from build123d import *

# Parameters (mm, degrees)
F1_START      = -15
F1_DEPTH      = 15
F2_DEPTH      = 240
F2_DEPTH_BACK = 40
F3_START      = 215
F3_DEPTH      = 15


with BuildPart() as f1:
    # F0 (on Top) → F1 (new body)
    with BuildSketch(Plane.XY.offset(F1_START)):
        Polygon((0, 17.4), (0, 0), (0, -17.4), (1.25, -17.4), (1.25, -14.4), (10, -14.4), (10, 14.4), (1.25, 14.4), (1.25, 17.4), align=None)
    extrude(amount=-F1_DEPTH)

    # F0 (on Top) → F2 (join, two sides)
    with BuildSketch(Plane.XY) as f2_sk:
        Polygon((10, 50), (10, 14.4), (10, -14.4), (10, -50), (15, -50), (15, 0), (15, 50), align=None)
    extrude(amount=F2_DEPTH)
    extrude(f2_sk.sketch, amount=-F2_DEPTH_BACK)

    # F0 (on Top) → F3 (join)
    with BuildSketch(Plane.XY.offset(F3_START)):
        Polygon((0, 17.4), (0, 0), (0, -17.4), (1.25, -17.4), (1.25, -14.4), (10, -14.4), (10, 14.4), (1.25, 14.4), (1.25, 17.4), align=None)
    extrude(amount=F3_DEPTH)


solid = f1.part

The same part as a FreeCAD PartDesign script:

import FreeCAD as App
import Part
import Sketcher

V = App.Vector
Q = App.Units.Quantity


def add_polygon(sketch, points):
    """Adds a closed chain of lines whose ends are joined by coincident constraints."""
    first, n = sketch.GeometryCount, len(points)
    for a, b in zip(points, points[1:] + points[:1]):
        sketch.addGeometry(Part.LineSegment(App.Vector(*a, 0), App.Vector(*b, 0)), False)
    for i in range(n):
        sketch.addConstraint(Sketcher.Constraint("Coincident", first + i, 2, first + (i + 1) % n, 1))

doc = App.newDocument("Part")
body = doc.addObject("PartDesign::Body", "Body")

# Sketch on XY plane
sketch1 = body.newObject("Sketcher::SketchObject", "Sketch")
sketch1.AttachmentSupport = (doc.getObject("XY_Plane"), [""])
sketch1.MapMode = "FlatFace"
sketch1.AttachmentOffset = App.Placement(V(0, 0, -15), App.Rotation())
add_polygon(sketch1, [(0, 17.4), (0, -17.4), (1.2, -17.4), (1.2, -14.4), (10, -14.4), (10, 14.4), (1.2, 14.4), (1.2, 17.4)])  # lines 0-7
sketch1.addConstraint(Sketcher.Constraint("Vertical", 0))
sketch1.addConstraint(Sketcher.Constraint("Horizontal", 1))
sketch1.addConstraint(Sketcher.Constraint("Vertical", 2))
sketch1.addConstraint(Sketcher.Constraint("Horizontal", 3))
sketch1.addConstraint(Sketcher.Constraint("Vertical", 4))
sketch1.addConstraint(Sketcher.Constraint("Horizontal", 5))
sketch1.addConstraint(Sketcher.Constraint("Vertical", 6))
sketch1.addConstraint(Sketcher.Constraint("Horizontal", 7))
sketch1.addConstraint(Sketcher.Constraint("Symmetric", 0, 2, 7, 2, -1, 1))
sketch1.addConstraint(Sketcher.Constraint("Symmetric", 2, 2, 5, 2, -1))
sketch1.addConstraint(Sketcher.Constraint("DistanceY", 2, 1, 2, 2, Q("3 mm")))
sketch1.addConstraint(Sketcher.Constraint("DistanceY", 0, 2, 0, 1, Q("34.8 mm")))
sketch1.addConstraint(Sketcher.Constraint("DistanceX", -1, 1, 3, 2, Q("10 mm")))
sketch1.addConstraint(Sketcher.Constraint("DistanceX", 1, 1, 1, 2, Q("1.25 mm")))
pad1 = body.newObject("PartDesign::Pad", "Pad")
pad1.Profile = sketch1
pad1.Length = 15
pad1.Reversed = True

# Sketch on XY plane
sketch2 = body.newObject("Sketcher::SketchObject", "Sketch001")
sketch2.AttachmentSupport = (doc.getObject("XY_Plane"), [""])
sketch2.MapMode = "FlatFace"
add_polygon(sketch2, [(10, 50), (10, -50), (15, -50), (15, 50)])  # lines 0-3
sketch2.addConstraint(Sketcher.Constraint("Vertical", 0))
sketch2.addConstraint(Sketcher.Constraint("Horizontal", 1))
sketch2.addConstraint(Sketcher.Constraint("Vertical", 2))
sketch2.addConstraint(Sketcher.Constraint("Horizontal", 3))
sketch2.addConstraint(Sketcher.Constraint("DistanceX", 1, 1, 1, 2, Q("5 mm")))
sketch2.addConstraint(Sketcher.Constraint("DistanceY", 0, 2, 0, 1, Q("100 mm")))
sketch2.addConstraint(Sketcher.Constraint("DistanceX", -1, 1, 0, 2, Q("10 mm")))
sketch2.addConstraint(Sketcher.Constraint("DistanceY", 0, 2, -1, 1, Q("50 mm")))
pad2 = body.newObject("PartDesign::Pad", "Pad001")
pad2.Profile = sketch2
pad2.Type = "TwoLengths"
pad2.Length = 240
pad2.Length2 = 40

# Sketch on XY plane
sketch3 = body.newObject("Sketcher::SketchObject", "Sketch002")
sketch3.AttachmentSupport = (doc.getObject("XY_Plane"), [""])
sketch3.MapMode = "FlatFace"
sketch3.AttachmentOffset = App.Placement(V(0, 0, 215), App.Rotation())
add_polygon(sketch3, [(0, 17.4), (0, -17.4), (1.2, -17.4), (1.2, -14.4), (10, -14.4), (10, 14.4), (1.2, 14.4), (1.2, 17.4)])  # lines 0-7
sketch3.addConstraint(Sketcher.Constraint("Vertical", 0))
sketch3.addConstraint(Sketcher.Constraint("Horizontal", 1))
sketch3.addConstraint(Sketcher.Constraint("Vertical", 2))
sketch3.addConstraint(Sketcher.Constraint("Horizontal", 3))
sketch3.addConstraint(Sketcher.Constraint("Vertical", 4))
sketch3.addConstraint(Sketcher.Constraint("Horizontal", 5))
sketch3.addConstraint(Sketcher.Constraint("Vertical", 6))
sketch3.addConstraint(Sketcher.Constraint("Horizontal", 7))
sketch3.addConstraint(Sketcher.Constraint("Symmetric", 0, 2, 7, 2, -1, 1))
sketch3.addConstraint(Sketcher.Constraint("Symmetric", 2, 2, 5, 2, -1))
sketch3.addConstraint(Sketcher.Constraint("DistanceY", 2, 1, 2, 2, Q("3 mm")))
sketch3.addConstraint(Sketcher.Constraint("DistanceY", 0, 2, 0, 1, Q("34.8 mm")))
sketch3.addConstraint(Sketcher.Constraint("DistanceX", -1, 1, 3, 2, Q("10 mm")))
sketch3.addConstraint(Sketcher.Constraint("DistanceX", 1, 1, 1, 2, Q("1.25 mm")))
pad3 = body.newObject("PartDesign::Pad", "Pad002")
pad3.Profile = sketch3
pad3.Length = 15

doc.recompute()
